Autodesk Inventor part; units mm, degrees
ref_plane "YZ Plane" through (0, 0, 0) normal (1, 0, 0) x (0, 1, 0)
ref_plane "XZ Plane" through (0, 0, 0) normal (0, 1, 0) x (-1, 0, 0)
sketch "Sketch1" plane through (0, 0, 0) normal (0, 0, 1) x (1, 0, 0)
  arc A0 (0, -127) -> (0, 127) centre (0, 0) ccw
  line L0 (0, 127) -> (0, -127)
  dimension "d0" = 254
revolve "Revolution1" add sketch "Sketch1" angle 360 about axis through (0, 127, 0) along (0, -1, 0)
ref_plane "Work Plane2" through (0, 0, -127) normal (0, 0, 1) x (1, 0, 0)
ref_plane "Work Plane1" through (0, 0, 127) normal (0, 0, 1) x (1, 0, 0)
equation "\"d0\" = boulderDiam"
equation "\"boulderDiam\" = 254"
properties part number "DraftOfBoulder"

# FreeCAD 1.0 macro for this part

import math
import FreeCAD as App
import Part
import Sketcher
Q = App.Units.Quantity

doc = App.newDocument("Part")
body = doc.addObject("PartDesign::Body", "Body")

# Sketch on XY plane
sketch1 = doc.addObject("Sketcher::SketchObject", "Sketch")
body.addObject(sketch1)
sketch1.AttachmentSupport = (doc.XY_Plane, [""])
sketch1.MapMode = "FlatFace"
sketch1.addGeometry([
    Part.LineSegment(App.Vector(0, 127, 0), App.Vector(0, -127, 0)),
    Part.ArcOfCircle(Part.Circle(App.Vector(0, 0, 0), App.Vector(0, 0, 1), 127), math.radians(-90), math.radians(90)),
], False)
sketch1.addConstraint([
    Sketcher.Constraint("Coincident", 0, 1, 1, 2),
    Sketcher.Constraint("Coincident", 1, 1, 0, 2),
    Sketcher.Constraint("Vertical", 0),
    Sketcher.Constraint("Coincident", 1, 3, -1, 1),
    Sketcher.Constraint("PointOnObject", 0, 1, -2),
    Sketcher.Constraint("Radius", 1, Q("5 in")),
])
revolution = doc.addObject("PartDesign::Revolution", "Revolution")
body.addObject(revolution)
revolution.Profile = sketch1
revolution.ReferenceAxis = (sketch1, ["V_Axis"])
revolution.Angle = 360

doc.recompute()
